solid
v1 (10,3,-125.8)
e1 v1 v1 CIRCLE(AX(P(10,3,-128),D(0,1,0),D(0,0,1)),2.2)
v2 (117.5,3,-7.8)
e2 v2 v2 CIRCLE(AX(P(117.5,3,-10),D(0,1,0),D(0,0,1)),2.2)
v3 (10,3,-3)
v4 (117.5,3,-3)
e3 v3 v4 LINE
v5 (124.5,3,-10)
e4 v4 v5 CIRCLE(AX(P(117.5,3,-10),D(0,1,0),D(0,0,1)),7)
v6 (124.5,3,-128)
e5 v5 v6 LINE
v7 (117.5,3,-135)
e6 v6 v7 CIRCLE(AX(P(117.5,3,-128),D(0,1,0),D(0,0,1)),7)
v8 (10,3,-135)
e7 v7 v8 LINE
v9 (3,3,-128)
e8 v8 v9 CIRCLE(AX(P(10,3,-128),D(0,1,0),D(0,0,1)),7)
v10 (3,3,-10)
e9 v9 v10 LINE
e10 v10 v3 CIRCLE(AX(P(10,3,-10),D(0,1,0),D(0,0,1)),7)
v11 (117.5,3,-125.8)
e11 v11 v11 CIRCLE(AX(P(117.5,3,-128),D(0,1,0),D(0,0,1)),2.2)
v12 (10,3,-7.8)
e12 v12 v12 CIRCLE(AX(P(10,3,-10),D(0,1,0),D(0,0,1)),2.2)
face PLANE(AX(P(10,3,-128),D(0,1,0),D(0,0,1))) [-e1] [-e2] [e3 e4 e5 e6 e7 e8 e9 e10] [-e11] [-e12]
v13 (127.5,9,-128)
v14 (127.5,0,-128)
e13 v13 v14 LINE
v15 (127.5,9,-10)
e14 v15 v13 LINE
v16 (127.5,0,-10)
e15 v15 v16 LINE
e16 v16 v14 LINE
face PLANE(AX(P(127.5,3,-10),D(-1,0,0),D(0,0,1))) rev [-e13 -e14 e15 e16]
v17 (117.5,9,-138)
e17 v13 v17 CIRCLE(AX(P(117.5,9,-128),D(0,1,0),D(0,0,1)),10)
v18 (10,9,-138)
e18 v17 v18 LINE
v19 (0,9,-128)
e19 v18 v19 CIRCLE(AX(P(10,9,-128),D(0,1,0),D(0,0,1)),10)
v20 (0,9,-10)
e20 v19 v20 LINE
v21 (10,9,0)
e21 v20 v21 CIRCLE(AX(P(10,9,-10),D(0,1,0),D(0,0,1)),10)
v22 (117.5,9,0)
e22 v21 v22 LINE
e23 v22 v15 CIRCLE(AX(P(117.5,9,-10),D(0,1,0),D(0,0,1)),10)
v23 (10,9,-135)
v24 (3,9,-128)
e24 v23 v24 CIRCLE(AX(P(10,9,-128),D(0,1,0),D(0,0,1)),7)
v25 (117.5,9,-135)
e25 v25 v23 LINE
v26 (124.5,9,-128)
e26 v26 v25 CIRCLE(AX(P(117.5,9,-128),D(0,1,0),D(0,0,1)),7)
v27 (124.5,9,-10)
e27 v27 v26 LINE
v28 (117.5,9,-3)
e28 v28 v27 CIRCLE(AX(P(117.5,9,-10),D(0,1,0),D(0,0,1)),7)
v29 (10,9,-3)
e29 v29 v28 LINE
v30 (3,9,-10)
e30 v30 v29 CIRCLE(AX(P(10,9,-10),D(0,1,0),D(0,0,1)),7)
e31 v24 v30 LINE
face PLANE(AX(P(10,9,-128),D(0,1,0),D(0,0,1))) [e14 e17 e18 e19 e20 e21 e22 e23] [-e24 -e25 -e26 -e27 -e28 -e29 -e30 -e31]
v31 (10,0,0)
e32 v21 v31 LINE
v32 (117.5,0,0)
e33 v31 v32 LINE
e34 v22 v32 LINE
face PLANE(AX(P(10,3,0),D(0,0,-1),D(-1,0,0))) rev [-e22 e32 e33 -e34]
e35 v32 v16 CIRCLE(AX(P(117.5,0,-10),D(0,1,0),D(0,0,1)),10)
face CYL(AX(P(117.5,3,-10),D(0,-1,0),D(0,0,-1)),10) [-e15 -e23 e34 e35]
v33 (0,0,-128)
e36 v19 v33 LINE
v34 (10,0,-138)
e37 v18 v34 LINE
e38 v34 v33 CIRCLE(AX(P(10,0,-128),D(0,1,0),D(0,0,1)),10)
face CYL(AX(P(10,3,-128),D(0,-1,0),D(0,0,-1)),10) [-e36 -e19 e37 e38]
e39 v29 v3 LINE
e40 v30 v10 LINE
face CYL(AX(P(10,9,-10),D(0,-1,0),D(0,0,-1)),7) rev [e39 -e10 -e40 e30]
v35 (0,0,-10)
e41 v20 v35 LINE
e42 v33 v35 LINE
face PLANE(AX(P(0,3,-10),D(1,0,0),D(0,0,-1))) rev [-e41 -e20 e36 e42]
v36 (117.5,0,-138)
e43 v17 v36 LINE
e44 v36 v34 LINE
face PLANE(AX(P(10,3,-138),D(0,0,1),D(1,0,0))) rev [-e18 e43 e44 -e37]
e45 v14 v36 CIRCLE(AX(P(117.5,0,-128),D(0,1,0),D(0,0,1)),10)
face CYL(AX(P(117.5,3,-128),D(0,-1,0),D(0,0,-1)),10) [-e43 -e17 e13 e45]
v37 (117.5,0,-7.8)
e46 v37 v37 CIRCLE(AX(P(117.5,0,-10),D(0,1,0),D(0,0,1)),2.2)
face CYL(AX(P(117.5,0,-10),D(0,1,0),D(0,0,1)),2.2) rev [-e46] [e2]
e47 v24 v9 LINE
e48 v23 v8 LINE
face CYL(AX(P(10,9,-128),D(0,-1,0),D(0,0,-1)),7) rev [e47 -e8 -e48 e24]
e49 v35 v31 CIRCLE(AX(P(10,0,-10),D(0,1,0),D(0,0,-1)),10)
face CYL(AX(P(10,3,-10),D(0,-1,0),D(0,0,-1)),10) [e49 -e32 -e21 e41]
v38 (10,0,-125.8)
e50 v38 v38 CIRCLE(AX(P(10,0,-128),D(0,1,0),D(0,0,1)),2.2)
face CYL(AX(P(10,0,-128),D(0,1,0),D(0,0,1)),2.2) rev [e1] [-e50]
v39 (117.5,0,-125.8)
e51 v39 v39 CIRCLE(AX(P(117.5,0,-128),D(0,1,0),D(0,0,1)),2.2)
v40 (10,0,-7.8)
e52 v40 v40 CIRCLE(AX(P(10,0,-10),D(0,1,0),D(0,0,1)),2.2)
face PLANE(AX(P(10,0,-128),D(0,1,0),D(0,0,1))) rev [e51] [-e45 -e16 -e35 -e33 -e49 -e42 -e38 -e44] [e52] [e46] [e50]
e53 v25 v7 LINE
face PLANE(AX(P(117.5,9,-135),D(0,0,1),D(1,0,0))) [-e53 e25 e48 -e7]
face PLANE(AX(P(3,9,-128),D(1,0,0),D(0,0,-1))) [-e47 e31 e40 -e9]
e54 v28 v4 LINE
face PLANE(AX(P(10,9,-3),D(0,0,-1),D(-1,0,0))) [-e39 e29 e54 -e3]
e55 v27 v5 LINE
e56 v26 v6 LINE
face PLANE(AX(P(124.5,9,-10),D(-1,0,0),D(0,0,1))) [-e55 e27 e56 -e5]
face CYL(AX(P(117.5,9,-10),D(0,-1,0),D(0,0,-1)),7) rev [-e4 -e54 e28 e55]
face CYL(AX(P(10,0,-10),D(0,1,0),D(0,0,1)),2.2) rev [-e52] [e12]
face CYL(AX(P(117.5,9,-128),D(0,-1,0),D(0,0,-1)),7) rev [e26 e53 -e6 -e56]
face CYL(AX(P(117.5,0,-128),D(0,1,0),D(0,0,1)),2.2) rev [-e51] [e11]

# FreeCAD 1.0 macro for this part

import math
import FreeCAD as App
import Part
import Sketcher

doc = App.newDocument("Part")
body = doc.addObject("PartDesign::Body", "Body")

# Sketch on XZ plane
sketch1 = body.newObject("Sketcher::SketchObject", "Sketch")
sketch1.AttachmentSupport = (doc.getObject("XZ_Plane"), [""])
sketch1.MapMode = "FlatFace"
sketch1.addGeometry(Part.LineSegment(App.Vector(10, 0, 0), App.Vector(118, 0, 0)), False)
sketch1.addGeometry(Part.ArcOfCircle(Part.Circle(App.Vector(118, -10, 0), App.Vector(0, 0, 1), 10), math.radians(0), math.radians(90)), False)
sketch1.addGeometry(Part.LineSegment(App.Vector(128, -10, 0), App.Vector(128, -128, 0)), False)
sketch1.addGeometry(Part.ArcOfCircle(Part.Circle(App.Vector(118, -128, 0), App.Vector(0, 0, 1), 10), math.radians(-90), math.radians(0)), False)
sketch1.addGeometry(Part.LineSegment(App.Vector(118, -138, 0), App.Vector(10, -138, 0)), False)
sketch1.addGeometry(Part.ArcOfCircle(Part.Circle(App.Vector(10, -128, 0), App.Vector(0, 0, 1), 10), math.radians(180), math.radians(270)), False)
sketch1.addGeometry(Part.LineSegment(App.Vector(0, -128, 0), App.Vector(0, -10, 0)), False)
sketch1.addGeometry(Part.ArcOfCircle(Part.Circle(App.Vector(10, -10, 0), App.Vector(0, 0, 1), 10), math.radians(90), math.radians(180)), False)
sketch1.addConstraint(Sketcher.Constraint("Tangent", 0, 2, 1, 2))
sketch1.addConstraint(Sketcher.Constraint("Tangent", 1, 1, 2, 1))
sketch1.addConstraint(Sketcher.Constraint("Tangent", 2, 2, 3, 2))
sketch1.addConstraint(Sketcher.Constraint("Tangent", 3, 1, 4, 1))
sketch1.addConstraint(Sketcher.Constraint("Tangent", 4, 2, 5, 2))
sketch1.addConstraint(Sketcher.Constraint("Tangent", 5, 1, 6, 1))
sketch1.addConstraint(Sketcher.Constraint("Tangent", 6, 2, 7, 2))
sketch1.addConstraint(Sketcher.Constraint("Tangent", 7, 1, 0, 1))
sketch1.addConstraint(Sketcher.Constraint("Horizontal", 0))
sketch1.addConstraint(Sketcher.Constraint("Vertical", 2))
sketch1.addConstraint(Sketcher.Constraint("Horizontal", 4))
sketch1.addConstraint(Sketcher.Constraint("Vertical", 6))
sketch1.addConstraint(Sketcher.Constraint("Equal", 1, 3))
sketch1.addConstraint(Sketcher.Constraint("Equal", 3, 5))
sketch1.addConstraint(Sketcher.Constraint("Equal", 5, 7))
sketch1.addConstraint(Sketcher.Constraint("PointOnObject", 0, 2, -1))
sketch1.addConstraint(Sketcher.Constraint("PointOnObject", 5, 1, -2))
sketch1.addConstraint(Sketcher.Constraint("Radius", 1, 10.0))
sketch1.addConstraint(Sketcher.Constraint("DistanceY", 2, 2, 2, 1, 118.0))
sketch1.addConstraint(Sketcher.Constraint("DistanceX", 0, 1, 0, 2, 107.5))
pad1 = body.newObject("PartDesign::Pad", "Pad")
pad1.Profile = sketch1
pad1.Length = 3
pad1.Reversed = True

# Sketch on XZ plane
sketch2 = body.newObject("Sketcher::SketchObject", "Sketch001")
sketch2.AttachmentSupport = (doc.getObject("XZ_Plane"), [""])
sketch2.MapMode = "FlatFace"
sketch2.AttachmentOffset = App.Placement(App.Vector(0, 0, -3), App.Rotation())
sketch2.addGeometry(Part.LineSegment(App.Vector(0, -128, 0), App.Vector(0, -10, 0)), False)
sketch2.addGeometry(Part.ArcOfCircle(Part.Circle(App.Vector(10, -10, 0), App.Vector(0, 0, 1), 10), math.radians(90), math.radians(180)), False)
sketch2.addGeometry(Part.LineSegment(App.Vector(10, 0, 0), App.Vector(118, 0, 0)), False)
sketch2.addGeometry(Part.ArcOfCircle(Part.Circle(App.Vector(118, -10, 0), App.Vector(0, 0, 1), 10), math.radians(0), math.radians(90)), False)
sketch2.addGeometry(Part.LineSegment(App.Vector(128, -10, 0), App.Vector(128, -128, 0)), False)
sketch2.addGeometry(Part.ArcOfCircle(Part.Circle(App.Vector(118, -128, 0), App.Vector(0, 0, 1), 10), math.radians(-90), math.radians(0)), False)
sketch2.addGeometry(Part.LineSegment(App.Vector(118, -138, 0), App.Vector(10, -138, 0)), False)
sketch2.addGeometry(Part.ArcOfCircle(Part.Circle(App.Vector(10, -128, 0), App.Vector(0, 0, 1), 10), math.radians(180), math.radians(270)), False)
sketch2.addGeometry(Part.LineSegment(App.Vector(10, -135, 0), App.Vector(118, -135, 0)), False)
sketch2.addGeometry(Part.ArcOfCircle(Part.Circle(App.Vector(117, -128, 0), App.Vector(0, 0, 1), 7), math.radians(-90), math.radians(0)), False)
sketch2.addGeometry(Part.LineSegment(App.Vector(124, -128, 0), App.Vector(124, -10, 0)), False)
sketch2.addGeometry(Part.ArcOfCircle(Part.Circle(App.Vector(117, -10, 0), App.Vector(0, 0, 1), 7), math.radians(0), math.radians(90)), False)
sketch2.addGeometry(Part.LineSegment(App.Vector(118, -3, 0), App.Vector(10, -3, 0)), False)
sketch2.addGeometry(Part.ArcOfCircle(Part.Circle(App.Vector(10, -10, 0), App.Vector(0, 0, 1), 7), math.radians(90), math.radians(180)), False)
sketch2.addGeometry(Part.LineSegment(App.Vector(3, -10, 0), App.Vector(3, -128, 0)), False)
sketch2.addGeometry(Part.ArcOfCircle(Part.Circle(App.Vector(10, -128, 0), App.Vector(0, 0, 1), 7), math.radians(-180), math.radians(-90)), False)
sketch2.addConstraint(Sketcher.Constraint("Tangent", 0, 2, 1, 2))
sketch2.addConstraint(Sketcher.Constraint("Tangent", 1, 1, 2, 1))
sketch2.addConstraint(Sketcher.Constraint("Tangent", 2, 2, 3, 2))
sketch2.addConstraint(Sketcher.Constraint("Tangent", 3, 1, 4, 1))
sketch2.addConstraint(Sketcher.Constraint("Tangent", 4, 2, 5, 2))
sketch2.addConstraint(Sketcher.Constraint("Tangent", 5, 1, 6, 1))
sketch2.addConstraint(Sketcher.Constraint("Tangent", 6, 2, 7, 2))
sketch2.addConstraint(Sketcher.Constraint("Tangent", 7, 1, 0, 1))
sketch2.addConstraint(Sketcher.Constraint("Tangent", 8, 2, 9, 1))
sketch2.addConstraint(Sketcher.Constraint("Tangent", 9, 2, 10, 1))
sketch2.addConstraint(Sketcher.Constraint("Tangent", 10, 2, 11, 1))
sketch2.addConstraint(Sketcher.Constraint("Tangent", 11, 2, 12, 1))
sketch2.addConstraint(Sketcher.Constraint("Tangent", 12, 2, 13, 1))
sketch2.addConstraint(Sketcher.Constraint("Tangent", 13, 2, 14, 1))
sketch2.addConstraint(Sketcher.Constraint("Tangent", 14, 2, 15, 1))
sketch2.addConstraint(Sketcher.Constraint("Tangent", 15, 2, 8, 1))
sketch2.addConstraint(Sketcher.Constraint("Vertical", 0))
sketch2.addConstraint(Sketcher.Constraint("Horizontal", 2))
sketch2.addConstraint(Sketcher.Constraint("Vertical", 4))
sketch2.addConstraint(Sketcher.Constraint("Horizontal", 6))
sketch2.addConstraint(Sketcher.Constraint("Horizontal", 8))
sketch2.addConstraint(Sketcher.Constraint("Vertical", 10))
sketch2.addConstraint(Sketcher.Constraint("Horizontal", 12))
sketch2.addConstraint(Sketcher.Constraint("Vertical", 14))
sketch2.addConstraint(Sketcher.Constraint("Coincident", 9, 3, 5, 3))
sketch2.addConstraint(Sketcher.Constraint("Coincident", 11, 3, 3, 3))
sketch2.addConstraint(Sketcher.Constraint("Coincident", 13, 3, 1, 3))
sketch2.addConstraint(Sketcher.Constraint("Equal", 1, 3))
sketch2.addConstraint(Sketcher.Constraint("Equal", 3, 5))
sketch2.addConstraint(Sketcher.Constraint("Equal", 5, 7))
sketch2.addConstraint(Sketcher.Constraint("Equal", 13, 15))
sketch2.addConstraint(Sketcher.Constraint("PointOnObject", 0, 2, -2))
sketch2.addConstraint(Sketcher.Constraint("PointOnObject", 1, 1, -1))
sketch2.addConstraint(Sketcher.Constraint("Radius", 1, 10.0))
sketch2.addConstraint(Sketcher.Constraint("Radius", 9, 7.0))
sketch2.addConstraint(Sketcher.Constraint("DistanceY", 0, 1, 0, 2, 118.0))
sketch2.addConstraint(Sketcher.Constraint("DistanceX", 2, 1, 2, 2, 107.5))
pad2 = body.newObject("PartDesign::Pad", "Pad001")
pad2.Profile = sketch2
pad2.Length = 6
pad2.Reversed = True

# Sketch on XZ plane
sketch3 = body.newObject("Sketcher::SketchObject", "Sketch002")
sketch3.AttachmentSupport = (doc.getObject("XZ_Plane"), [""])
sketch3.MapMode = "FlatFace"
sketch3.AttachmentOffset = App.Placement(App.Vector(0, 0, -3), App.Rotation())
sketch3.addGeometry(Part.Circle(App.Vector(10, -128, 0), App.Vector(0, 0, 1), 2.2), False)
sketch3.addGeometry(Part.Circle(App.Vector(117.5, -128, 0), App.Vector(0, 0, 1), 2.2), False)
sketch3.addGeometry(Part.Circle(App.Vector(10, -10, 0), App.Vector(0, 0, 1), 2.2), False)
sketch3.addGeometry(Part.Circle(App.Vector(117.5, -10, 0), App.Vector(0, 0, 1), 2.2), False)
sketch3.addConstraint(Sketcher.Constraint("Equal", 0, 1))
sketch3.addConstraint(Sketcher.Constraint("Equal", 1, 2))
sketch3.addConstraint(Sketcher.Constraint("Equal", 2, 3))
sketch3.addConstraint(Sketcher.Constraint("Horizontal", 0, 3, 1, 3))
sketch3.addConstraint(Sketcher.Constraint("Horizontal", 2, 3, 3, 3))
sketch3.addConstraint(Sketcher.Constraint("Vertical", 0, 3, 2, 3))
sketch3.addConstraint(Sketcher.Constraint("Vertical", 1, 3, 3, 3))
sketch3.addConstraint(Sketcher.Constraint("Diameter", 0, 4.4))
sketch3.addConstraint(Sketcher.Constraint("DistanceX", -1, 1, 0, 3, 10.0))
sketch3.addConstraint(Sketcher.Constraint("DistanceY", 0, 3, -1, 1, 128.0))
sketch3.addConstraint(Sketcher.Constraint("DistanceY", 2, 3, -1, 1, 10.0))
sketch3.addConstraint(Sketcher.Constraint("DistanceX", -1, 1, 1, 3, 117.5))
pocket1 = body.newObject("PartDesign::Pocket", "Pocket")
pocket1.Profile = sketch3
pocket1.Type = "ThroughAll"
pocket1.Reversed = True

doc.recompute()
